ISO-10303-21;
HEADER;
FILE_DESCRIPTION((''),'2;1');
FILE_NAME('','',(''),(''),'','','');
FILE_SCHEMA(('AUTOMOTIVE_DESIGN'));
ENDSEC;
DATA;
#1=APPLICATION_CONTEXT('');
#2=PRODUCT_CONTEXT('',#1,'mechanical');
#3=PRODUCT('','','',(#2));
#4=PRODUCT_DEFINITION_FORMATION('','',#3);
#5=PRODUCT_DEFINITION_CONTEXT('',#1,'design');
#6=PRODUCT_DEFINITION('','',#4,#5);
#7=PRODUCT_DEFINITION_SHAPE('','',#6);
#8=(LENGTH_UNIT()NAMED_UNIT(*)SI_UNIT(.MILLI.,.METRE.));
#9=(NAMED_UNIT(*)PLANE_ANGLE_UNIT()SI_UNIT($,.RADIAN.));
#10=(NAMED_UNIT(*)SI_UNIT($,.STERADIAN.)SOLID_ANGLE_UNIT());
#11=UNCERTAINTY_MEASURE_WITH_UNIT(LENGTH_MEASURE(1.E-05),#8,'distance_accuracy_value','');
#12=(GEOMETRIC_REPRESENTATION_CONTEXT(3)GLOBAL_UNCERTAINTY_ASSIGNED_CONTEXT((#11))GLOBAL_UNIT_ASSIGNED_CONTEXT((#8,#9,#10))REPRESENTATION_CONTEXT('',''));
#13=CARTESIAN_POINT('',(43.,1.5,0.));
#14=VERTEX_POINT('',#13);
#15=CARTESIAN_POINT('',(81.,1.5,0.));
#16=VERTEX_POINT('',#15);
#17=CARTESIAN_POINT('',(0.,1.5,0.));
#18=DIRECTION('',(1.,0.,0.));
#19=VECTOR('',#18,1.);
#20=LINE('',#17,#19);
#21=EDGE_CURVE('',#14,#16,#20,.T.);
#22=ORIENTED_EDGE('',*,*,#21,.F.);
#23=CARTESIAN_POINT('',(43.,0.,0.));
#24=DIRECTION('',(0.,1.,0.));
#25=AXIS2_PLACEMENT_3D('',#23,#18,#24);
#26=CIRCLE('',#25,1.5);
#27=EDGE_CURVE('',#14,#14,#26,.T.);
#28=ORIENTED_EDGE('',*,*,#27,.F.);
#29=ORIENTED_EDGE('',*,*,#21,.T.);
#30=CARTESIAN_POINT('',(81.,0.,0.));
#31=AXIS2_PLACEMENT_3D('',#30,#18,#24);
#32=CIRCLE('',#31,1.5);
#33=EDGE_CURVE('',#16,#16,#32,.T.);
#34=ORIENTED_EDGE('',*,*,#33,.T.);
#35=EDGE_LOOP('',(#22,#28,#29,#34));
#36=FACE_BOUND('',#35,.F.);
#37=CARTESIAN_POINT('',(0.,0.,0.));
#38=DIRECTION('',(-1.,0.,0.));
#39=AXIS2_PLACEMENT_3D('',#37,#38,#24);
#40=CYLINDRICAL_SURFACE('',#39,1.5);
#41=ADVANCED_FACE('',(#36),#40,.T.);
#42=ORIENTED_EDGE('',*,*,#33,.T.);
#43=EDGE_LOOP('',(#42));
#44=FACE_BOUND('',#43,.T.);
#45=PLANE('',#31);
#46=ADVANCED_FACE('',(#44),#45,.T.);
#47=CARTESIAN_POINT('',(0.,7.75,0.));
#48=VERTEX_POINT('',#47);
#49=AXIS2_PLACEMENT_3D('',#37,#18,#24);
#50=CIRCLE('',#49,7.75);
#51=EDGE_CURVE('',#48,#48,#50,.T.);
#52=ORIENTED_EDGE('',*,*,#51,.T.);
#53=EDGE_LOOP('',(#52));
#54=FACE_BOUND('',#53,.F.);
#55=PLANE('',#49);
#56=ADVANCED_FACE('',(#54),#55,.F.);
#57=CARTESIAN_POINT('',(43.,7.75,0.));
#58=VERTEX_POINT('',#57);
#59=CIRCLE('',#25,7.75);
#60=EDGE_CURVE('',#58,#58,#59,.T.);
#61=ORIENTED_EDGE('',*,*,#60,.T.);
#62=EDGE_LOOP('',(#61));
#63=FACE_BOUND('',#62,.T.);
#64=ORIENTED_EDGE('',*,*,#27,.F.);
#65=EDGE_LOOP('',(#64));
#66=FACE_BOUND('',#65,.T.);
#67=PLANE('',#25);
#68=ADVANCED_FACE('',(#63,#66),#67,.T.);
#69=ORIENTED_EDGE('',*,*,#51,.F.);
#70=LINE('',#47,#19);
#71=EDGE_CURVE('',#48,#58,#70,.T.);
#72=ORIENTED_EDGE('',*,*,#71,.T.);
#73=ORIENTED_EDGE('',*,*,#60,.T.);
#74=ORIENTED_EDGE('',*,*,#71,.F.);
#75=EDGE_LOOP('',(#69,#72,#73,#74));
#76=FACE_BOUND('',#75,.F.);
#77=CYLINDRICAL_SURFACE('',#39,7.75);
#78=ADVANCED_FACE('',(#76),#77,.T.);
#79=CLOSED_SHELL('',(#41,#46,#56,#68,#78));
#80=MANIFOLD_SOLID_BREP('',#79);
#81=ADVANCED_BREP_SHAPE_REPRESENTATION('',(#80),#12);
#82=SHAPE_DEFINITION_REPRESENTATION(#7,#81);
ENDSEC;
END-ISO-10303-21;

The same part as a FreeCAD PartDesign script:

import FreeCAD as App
import Part
import Sketcher

doc = App.newDocument("Part")
body = doc.addObject("PartDesign::Body", "Body")

sketch1 = doc.addObject("Sketcher::SketchObject", "Sketch")
body.addObject(sketch1)
sketch1.AttachmentSupport = (doc.YZ_Plane, [""])
sketch1.MapMode = "FlatFace"
sketch1.addGeometry(Part.Circle(App.Vector(0, 0, 0), App.Vector(0, 0, 1), 7.8), False)
sketch1.addGeometry(Part.Circle(App.Vector(0, 0, 0), App.Vector(0, 0, 1), 1.5), False)
sketch1.addConstraint(Sketcher.Constraint("Coincident", 0, 3, -1, 1))
sketch1.addConstraint(Sketcher.Constraint("Coincident", 1, 3, -1, 1))
sketch1.addConstraint(Sketcher.Constraint("Diameter", 1, 3.0))
sketch1.addConstraint(Sketcher.Constraint("Diameter", 0, 15.5))
pad1 = doc.addObject("PartDesign::Pad", "Pad")
body.addObject(pad1)
pad1.Profile = sketch1
pad1.Length = 43

sketch2 = doc.addObject("Sketcher::SketchObject", "Sketch001")
body.addObject(sketch2)
sketch2.AttachmentSupport = (doc.YZ_Plane, [""])
sketch2.MapMode = "FlatFace"
sketch2.addGeometry(Part.Circle(App.Vector(0, 0, 0), App.Vector(0, 0, 1), 1.5), False)
sketch2.addConstraint(Sketcher.Constraint("Coincident", 0, 3, -1, 1))
sketch2.addConstraint(Sketcher.Constraint("Diameter", 0, 3.0))
pad2 = doc.addObject("PartDesign::Pad", "Pad001")
body.addObject(pad2)
pad2.Profile = sketch2
pad2.Length = 81

doc.recompute()
